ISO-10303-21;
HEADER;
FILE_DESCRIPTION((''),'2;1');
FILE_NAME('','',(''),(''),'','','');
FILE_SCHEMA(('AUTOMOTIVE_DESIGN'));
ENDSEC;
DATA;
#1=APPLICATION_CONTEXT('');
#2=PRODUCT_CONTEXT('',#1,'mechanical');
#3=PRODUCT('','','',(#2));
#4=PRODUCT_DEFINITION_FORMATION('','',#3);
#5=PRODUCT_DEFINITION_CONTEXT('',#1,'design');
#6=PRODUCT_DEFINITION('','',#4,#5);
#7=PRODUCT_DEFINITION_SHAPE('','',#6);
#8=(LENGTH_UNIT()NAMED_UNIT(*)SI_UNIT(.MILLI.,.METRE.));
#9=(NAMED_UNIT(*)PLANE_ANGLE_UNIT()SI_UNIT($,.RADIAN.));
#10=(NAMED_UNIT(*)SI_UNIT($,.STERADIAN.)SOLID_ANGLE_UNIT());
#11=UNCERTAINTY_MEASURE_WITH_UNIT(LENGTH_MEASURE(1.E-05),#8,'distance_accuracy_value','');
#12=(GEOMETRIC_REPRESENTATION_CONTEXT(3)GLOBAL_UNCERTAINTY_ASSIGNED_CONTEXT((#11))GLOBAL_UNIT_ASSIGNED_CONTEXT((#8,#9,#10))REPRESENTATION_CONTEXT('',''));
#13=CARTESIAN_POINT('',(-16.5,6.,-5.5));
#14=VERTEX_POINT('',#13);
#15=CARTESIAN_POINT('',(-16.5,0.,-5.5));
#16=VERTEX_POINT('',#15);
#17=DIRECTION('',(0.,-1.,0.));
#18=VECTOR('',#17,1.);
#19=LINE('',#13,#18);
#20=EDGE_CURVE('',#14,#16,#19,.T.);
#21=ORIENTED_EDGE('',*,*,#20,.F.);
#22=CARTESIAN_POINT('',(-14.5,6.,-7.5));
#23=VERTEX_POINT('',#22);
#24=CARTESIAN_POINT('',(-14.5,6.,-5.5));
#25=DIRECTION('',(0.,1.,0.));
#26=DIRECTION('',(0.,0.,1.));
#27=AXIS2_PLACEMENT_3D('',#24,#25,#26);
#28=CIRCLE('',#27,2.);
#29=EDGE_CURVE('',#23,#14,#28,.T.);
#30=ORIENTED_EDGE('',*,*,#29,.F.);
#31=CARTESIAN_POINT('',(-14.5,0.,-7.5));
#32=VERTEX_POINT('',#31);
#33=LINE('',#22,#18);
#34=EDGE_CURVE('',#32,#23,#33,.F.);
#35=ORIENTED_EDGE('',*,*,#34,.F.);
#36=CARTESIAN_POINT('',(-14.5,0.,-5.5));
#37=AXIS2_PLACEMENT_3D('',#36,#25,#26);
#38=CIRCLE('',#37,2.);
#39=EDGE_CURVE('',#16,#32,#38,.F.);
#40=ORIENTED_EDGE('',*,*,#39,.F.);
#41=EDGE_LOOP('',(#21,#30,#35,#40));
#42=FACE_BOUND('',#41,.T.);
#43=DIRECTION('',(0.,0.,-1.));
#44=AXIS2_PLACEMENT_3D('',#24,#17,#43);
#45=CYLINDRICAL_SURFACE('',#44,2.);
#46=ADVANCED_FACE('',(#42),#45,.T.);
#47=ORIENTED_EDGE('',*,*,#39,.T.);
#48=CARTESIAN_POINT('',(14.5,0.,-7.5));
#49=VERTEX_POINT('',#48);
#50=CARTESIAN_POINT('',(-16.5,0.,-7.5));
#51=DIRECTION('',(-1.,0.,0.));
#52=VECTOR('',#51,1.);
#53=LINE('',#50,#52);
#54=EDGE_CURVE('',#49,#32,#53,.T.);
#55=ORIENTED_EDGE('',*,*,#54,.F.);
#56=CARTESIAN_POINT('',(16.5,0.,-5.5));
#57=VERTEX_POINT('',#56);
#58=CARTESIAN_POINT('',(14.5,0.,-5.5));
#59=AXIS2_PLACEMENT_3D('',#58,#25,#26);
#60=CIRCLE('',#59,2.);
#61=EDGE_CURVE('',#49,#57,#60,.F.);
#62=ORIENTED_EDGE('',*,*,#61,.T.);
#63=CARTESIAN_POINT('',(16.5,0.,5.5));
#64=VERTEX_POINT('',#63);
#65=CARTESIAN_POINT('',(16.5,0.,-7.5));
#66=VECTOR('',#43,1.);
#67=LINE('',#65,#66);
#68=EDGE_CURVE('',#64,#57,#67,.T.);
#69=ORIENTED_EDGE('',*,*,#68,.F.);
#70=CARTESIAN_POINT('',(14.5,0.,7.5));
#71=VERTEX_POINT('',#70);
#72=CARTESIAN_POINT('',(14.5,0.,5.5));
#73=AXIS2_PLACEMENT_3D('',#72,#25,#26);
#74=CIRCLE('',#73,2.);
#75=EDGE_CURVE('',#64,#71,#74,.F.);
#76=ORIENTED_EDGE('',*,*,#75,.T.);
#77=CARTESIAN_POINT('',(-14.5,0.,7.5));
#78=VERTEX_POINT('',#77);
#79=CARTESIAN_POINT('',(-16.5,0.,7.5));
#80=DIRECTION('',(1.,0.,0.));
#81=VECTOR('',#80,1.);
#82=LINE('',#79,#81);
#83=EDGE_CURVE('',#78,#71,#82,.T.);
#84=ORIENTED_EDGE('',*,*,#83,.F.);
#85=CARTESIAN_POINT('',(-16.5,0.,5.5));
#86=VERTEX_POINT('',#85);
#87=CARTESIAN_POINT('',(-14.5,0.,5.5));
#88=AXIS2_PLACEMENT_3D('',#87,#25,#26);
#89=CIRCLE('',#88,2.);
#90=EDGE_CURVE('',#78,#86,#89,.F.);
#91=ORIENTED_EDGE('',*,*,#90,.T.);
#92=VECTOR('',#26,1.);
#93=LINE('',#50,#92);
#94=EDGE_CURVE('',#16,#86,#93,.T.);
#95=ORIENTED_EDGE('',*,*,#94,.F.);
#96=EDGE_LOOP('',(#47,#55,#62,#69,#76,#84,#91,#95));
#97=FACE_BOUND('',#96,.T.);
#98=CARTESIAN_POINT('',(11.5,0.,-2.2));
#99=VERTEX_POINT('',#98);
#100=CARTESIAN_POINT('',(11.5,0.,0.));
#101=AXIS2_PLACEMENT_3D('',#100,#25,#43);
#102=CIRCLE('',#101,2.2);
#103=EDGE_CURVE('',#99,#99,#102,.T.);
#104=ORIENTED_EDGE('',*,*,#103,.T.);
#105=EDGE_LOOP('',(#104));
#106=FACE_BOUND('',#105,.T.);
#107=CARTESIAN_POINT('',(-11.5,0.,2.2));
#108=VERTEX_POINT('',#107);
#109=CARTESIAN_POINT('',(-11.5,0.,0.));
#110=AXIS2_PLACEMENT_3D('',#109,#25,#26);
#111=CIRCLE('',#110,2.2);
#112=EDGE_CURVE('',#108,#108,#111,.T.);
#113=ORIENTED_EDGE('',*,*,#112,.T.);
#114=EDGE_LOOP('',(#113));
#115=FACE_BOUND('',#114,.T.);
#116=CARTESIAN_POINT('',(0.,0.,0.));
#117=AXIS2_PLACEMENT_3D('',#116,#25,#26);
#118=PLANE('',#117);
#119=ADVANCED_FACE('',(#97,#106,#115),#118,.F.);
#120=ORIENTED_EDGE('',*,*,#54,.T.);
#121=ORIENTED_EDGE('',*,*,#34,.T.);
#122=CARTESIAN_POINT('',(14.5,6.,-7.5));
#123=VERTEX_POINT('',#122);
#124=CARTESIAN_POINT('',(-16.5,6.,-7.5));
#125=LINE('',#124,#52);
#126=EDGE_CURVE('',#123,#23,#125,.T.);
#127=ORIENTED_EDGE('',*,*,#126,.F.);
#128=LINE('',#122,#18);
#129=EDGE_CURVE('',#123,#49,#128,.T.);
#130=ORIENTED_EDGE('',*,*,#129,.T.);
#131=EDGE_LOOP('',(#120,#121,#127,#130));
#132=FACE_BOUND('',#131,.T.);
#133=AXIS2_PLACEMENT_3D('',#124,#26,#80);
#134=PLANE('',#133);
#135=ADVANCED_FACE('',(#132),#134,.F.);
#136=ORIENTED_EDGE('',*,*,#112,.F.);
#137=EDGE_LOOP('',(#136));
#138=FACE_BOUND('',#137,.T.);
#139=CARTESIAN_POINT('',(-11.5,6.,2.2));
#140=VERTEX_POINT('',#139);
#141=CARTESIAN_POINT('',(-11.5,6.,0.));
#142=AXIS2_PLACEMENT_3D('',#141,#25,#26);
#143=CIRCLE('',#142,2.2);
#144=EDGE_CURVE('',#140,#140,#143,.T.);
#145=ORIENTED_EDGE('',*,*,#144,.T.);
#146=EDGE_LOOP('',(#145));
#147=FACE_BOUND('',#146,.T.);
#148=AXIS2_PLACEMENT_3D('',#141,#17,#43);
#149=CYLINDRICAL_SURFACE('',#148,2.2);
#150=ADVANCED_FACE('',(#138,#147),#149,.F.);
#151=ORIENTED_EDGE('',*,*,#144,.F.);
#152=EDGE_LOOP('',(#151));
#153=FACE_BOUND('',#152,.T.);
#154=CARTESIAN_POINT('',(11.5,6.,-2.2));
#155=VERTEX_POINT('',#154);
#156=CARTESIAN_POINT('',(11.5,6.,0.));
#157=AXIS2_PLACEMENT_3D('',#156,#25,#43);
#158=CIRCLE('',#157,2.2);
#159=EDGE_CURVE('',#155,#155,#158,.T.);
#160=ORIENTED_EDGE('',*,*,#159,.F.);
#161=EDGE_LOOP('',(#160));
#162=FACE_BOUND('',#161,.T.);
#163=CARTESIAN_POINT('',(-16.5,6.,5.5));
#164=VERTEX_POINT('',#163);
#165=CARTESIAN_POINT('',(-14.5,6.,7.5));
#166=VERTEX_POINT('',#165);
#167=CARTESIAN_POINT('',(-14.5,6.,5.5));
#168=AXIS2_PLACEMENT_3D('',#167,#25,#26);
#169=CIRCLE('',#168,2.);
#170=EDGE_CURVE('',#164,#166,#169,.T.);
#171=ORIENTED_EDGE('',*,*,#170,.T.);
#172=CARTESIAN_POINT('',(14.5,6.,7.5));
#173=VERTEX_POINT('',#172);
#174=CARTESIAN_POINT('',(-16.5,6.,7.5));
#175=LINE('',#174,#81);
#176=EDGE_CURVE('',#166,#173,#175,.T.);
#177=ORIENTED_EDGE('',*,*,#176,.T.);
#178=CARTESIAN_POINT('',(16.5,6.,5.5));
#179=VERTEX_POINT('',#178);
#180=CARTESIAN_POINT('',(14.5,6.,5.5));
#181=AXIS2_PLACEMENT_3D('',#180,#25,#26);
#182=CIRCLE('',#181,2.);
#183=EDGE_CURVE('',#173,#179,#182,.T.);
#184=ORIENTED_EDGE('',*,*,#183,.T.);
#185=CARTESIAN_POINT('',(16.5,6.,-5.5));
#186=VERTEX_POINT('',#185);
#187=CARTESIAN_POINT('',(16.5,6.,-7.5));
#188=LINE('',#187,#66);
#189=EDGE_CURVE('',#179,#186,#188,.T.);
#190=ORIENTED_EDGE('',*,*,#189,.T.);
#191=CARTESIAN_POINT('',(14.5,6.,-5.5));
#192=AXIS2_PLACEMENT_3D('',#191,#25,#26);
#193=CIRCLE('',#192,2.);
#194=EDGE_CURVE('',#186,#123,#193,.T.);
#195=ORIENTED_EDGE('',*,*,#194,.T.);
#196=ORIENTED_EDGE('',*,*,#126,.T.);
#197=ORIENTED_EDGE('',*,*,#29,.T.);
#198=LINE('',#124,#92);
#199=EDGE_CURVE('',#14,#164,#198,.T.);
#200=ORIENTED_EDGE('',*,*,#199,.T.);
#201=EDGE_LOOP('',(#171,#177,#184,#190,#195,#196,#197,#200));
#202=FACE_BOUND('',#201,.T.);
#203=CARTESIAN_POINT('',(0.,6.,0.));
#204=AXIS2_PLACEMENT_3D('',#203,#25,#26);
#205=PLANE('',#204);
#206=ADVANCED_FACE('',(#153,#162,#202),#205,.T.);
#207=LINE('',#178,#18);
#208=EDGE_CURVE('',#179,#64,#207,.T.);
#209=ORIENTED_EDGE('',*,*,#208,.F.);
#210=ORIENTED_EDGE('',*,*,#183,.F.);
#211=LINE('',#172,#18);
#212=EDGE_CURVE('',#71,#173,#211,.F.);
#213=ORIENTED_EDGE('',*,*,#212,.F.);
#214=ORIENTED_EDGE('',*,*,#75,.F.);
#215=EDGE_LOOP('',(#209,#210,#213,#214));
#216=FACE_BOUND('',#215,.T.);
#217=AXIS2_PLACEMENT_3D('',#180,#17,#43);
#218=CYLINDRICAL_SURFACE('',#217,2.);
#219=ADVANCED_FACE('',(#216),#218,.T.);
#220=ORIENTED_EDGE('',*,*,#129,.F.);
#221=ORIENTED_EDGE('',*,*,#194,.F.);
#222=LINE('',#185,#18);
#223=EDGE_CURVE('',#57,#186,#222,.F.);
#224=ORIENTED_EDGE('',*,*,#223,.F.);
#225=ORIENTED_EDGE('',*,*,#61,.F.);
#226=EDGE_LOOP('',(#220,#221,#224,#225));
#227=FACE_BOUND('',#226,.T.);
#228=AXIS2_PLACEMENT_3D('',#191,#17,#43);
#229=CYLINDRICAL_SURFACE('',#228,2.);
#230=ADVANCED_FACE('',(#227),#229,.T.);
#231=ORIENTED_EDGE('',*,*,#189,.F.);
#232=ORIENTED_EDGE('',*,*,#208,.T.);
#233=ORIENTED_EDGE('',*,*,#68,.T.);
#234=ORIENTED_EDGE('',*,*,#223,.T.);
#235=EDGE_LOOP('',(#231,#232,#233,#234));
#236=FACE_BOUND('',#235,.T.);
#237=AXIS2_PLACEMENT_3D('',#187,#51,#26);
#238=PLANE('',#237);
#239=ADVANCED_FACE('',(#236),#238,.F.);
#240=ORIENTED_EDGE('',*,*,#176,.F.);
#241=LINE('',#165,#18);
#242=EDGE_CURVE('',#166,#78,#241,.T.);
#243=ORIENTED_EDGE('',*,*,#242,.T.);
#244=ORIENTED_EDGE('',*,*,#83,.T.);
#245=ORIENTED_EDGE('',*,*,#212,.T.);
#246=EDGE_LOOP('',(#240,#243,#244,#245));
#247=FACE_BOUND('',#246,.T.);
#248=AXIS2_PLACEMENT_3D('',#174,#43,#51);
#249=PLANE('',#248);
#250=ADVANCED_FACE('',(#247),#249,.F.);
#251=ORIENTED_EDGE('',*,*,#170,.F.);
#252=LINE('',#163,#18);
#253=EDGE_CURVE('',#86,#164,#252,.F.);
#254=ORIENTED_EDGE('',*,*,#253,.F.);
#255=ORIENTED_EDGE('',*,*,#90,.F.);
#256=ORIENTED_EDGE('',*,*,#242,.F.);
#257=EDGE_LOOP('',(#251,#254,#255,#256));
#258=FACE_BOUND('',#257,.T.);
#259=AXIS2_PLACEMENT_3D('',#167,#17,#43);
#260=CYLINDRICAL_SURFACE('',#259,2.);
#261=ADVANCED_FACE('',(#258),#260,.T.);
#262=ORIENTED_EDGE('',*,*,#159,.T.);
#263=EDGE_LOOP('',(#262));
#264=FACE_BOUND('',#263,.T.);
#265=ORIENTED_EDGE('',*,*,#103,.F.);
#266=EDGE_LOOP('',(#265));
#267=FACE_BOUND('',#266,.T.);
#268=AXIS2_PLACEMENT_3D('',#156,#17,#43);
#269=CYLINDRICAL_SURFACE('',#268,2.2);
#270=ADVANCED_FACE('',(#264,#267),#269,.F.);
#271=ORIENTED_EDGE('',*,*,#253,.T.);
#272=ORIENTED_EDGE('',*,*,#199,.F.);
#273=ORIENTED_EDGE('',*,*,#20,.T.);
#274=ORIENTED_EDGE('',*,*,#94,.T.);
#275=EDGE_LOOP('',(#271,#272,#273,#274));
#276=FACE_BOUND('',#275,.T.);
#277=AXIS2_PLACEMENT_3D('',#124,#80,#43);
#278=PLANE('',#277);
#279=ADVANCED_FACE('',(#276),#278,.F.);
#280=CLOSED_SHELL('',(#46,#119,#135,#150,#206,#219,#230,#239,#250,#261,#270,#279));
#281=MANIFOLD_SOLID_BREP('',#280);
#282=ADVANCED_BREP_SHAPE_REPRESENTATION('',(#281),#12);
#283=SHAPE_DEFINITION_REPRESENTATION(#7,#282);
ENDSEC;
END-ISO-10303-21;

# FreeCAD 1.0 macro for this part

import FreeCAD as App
import Part
import Sketcher

V = App.Vector
Q = App.Units.Quantity


def edges_at(feature, points):
    """Names of the edges that pass closest to the given points."""
    edges = feature.Shape.Edges
    near = lambda p: min(range(len(edges)), key=lambda i: edges[i].distToShape(Part.Vertex(*p))[0])
    return sorted({f"Edge{near(p) + 1}" for p in points})

doc = App.newDocument("Part")
body = doc.addObject("PartDesign::Body", "Body")

# Sketch on XZ plane
sketch1 = body.newObject("Sketcher::SketchObject", "Sketch")
sketch1.AttachmentSupport = (doc.getObject("XZ_Plane"), [""])
sketch1.MapMode = "FlatFace"
sketch1.addGeometry(Part.LineSegment(V(-16.5, -7.5, 0), V(-16.5, 7.5, 0)), False)
sketch1.addGeometry(Part.LineSegment(V(-16.5, 7.5, 0), V(16.5, 7.5, 0)), False)
sketch1.addGeometry(Part.LineSegment(V(16.5, 7.5, 0), V(16.5, -7.5, 0)), False)
sketch1.addGeometry(Part.LineSegment(V(16.5, -7.5, 0), V(-16.5, -7.5, 0)), False)
sketch1.addGeometry(Part.Circle(V(-11.5, 0, 0), V(0, 0, 1), 2.2), False)
sketch1.addGeometry(Part.Circle(V(11.5, 0, 0), V(0, 0, 1), 2.2), False)
sketch1.addConstraint(Sketcher.Constraint("Coincident", 0, 2, 1, 1))
sketch1.addConstraint(Sketcher.Constraint("Coincident", 1, 2, 2, 1))
sketch1.addConstraint(Sketcher.Constraint("Coincident", 2, 2, 3, 1))
sketch1.addConstraint(Sketcher.Constraint("Coincident", 3, 2, 0, 1))
sketch1.addConstraint(Sketcher.Constraint("Vertical", 0))
sketch1.addConstraint(Sketcher.Constraint("Horizontal", 1))
sketch1.addConstraint(Sketcher.Constraint("Vertical", 2))
sketch1.addConstraint(Sketcher.Constraint("Horizontal", 3))
sketch1.addConstraint(Sketcher.Constraint("Equal", 4, 5))
sketch1.addConstraint(Sketcher.Constraint("Symmetric", 4, 3, 5, 3, -1, 1))
sketch1.addConstraint(Sketcher.Constraint("Symmetric", 0, 2, 2, 2, -1, 1))
sketch1.addConstraint(Sketcher.Constraint("PointOnObject", 4, 3, -1))
sketch1.addConstraint(Sketcher.Constraint("Diameter", 4, Q("4.4 mm")))
sketch1.addConstraint(Sketcher.Constraint("DistanceX", 1, 1, 1, 2, Q("33 mm")))
sketch1.addConstraint(Sketcher.Constraint("DistanceY", 0, 1, 0, 2, Q("15 mm")))
sketch1.addConstraint(Sketcher.Constraint("DistanceX", 4, 3, 5, 3, Q("23 mm")))
pad1 = body.newObject("PartDesign::Pad", "Pad")
pad1.Profile = sketch1
pad1.Length = 6
pad1.Reversed = True
doc.recompute()

fillet = body.newObject("PartDesign::Fillet", "Fillet")
fillet.Base = (pad1, edges_at(pad1, [
    (16.5, 3, 7.5),
    (-16.5, 3, 7.5),
    (-16.5, 3, -7.5),
    (16.5, 3, -7.5),
]))
fillet.Radius = 2

doc.recompute()
